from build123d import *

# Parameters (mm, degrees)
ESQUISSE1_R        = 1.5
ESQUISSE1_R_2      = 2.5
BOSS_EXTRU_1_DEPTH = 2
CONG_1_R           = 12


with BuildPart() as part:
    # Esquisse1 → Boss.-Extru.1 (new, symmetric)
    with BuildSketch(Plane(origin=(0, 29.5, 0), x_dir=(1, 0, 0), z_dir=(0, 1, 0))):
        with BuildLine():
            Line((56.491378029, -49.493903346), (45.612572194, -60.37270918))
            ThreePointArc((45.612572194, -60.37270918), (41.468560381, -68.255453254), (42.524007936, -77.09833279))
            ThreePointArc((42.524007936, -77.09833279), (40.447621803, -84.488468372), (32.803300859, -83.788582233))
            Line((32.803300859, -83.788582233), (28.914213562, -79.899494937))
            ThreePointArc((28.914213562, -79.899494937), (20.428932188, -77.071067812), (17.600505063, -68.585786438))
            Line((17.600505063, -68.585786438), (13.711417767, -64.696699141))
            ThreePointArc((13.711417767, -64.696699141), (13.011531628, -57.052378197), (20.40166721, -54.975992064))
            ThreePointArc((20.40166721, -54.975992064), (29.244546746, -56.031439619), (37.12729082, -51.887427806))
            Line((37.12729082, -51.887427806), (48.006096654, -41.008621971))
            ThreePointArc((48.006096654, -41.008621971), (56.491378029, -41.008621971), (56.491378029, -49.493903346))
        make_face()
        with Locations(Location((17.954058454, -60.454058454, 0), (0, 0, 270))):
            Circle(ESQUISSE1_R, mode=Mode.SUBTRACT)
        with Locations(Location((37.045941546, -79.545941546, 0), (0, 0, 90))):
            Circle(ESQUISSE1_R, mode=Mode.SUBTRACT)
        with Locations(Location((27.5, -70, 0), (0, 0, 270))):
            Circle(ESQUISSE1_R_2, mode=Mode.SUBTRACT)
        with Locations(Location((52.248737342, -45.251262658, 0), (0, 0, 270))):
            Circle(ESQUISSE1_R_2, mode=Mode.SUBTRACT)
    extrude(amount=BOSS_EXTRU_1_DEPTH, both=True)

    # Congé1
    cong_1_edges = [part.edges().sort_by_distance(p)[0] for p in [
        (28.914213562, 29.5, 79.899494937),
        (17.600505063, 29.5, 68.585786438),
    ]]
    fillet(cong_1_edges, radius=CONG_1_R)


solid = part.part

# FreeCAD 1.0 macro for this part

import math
import FreeCAD as App
import Part
import Sketcher

V = App.Vector
Q = App.Units.Quantity


def edges_at(feature, points):
    """Names of the edges that pass closest to the given points."""
    edges = feature.Shape.Edges
    near = lambda p: min(range(len(edges)), key=lambda i: edges[i].distToShape(Part.Vertex(*p))[0])
    return sorted({f"Edge{near(p) + 1}" for p in points})

doc = App.newDocument("Part")
body = doc.addObject("PartDesign::Body", "Body")

# Sketch on XZ plane
sketch1 = body.newObject("Sketcher::SketchObject", "Sketch")
sketch1.AttachmentSupport = (doc.getObject("XZ_Plane"), [""])
sketch1.MapMode = "FlatFace"
sketch1.AttachmentOffset = App.Placement(V(0, 0, -29.5), App.Rotation())
sketch1.addGeometry(Part.LineSegment(V(45.612572, 60.372709, 0), V(56.491378, 49.493903, 0)), False)
sketch1.addGeometry(Part.ArcOfCircle(Part.Circle(V(52.248737, 45.251263, 0), V(0, 0, 1), 6), math.radians(-135), math.radians(45)), False)
sketch1.addGeometry(Part.LineSegment(V(48.006097, 41.008622, 0), V(37.127291, 51.887428, 0)), False)
sketch1.addGeometry(Part.ArcOfCircle(Part.Circle(V(26.520689, 41.280826, 0), V(0, 0, 1), 15), math.radians(45), math.radians(114.075168)), False)
sketch1.addGeometry(Part.ArcOfCircle(Part.Circle(V(17.954058, 60.454058, 0), V(0, 0, 1), 6), math.radians(135), math.radians(294.075168)), False)
sketch1.addGeometry(Part.LineSegment(V(13.711418, 64.696699, 0), V(17.600505, 68.585786, 0)), False)
sketch1.addGeometry(Part.ArcOfCircle(Part.Circle(V(27.5, 70, 0), V(0, 0, 1), 10), math.radians(81.869898), math.radians(188.130102)), False)
sketch1.addGeometry(Part.LineSegment(V(28.914214, 79.899495, 0), V(32.803301, 83.788582, 0)), False)
sketch1.addGeometry(Part.ArcOfCircle(Part.Circle(V(37.045942, 79.545942, 0), V(0, 0, 1), 6), math.radians(-24.075168), math.radians(135)), False)
sketch1.addGeometry(Part.ArcOfCircle(Part.Circle(V(56.219174, 70.979311, 0), V(0, 0, 1), 15), math.radians(155.924832), math.radians(225)), False)
sketch1.addGeometry(Part.Circle(V(37.045942, 79.545942, 0), V(0, 0, 1), 1.5), False)
sketch1.addGeometry(Part.Circle(V(27.5, 70, 0), V(0, 0, 1), 2.5), False)
sketch1.addGeometry(Part.Circle(V(52.248737, 45.251263, 0), V(0, 0, 1), 2.5), False)
sketch1.addGeometry(Part.Circle(V(17.954058, 60.454058, 0), V(0, 0, 1), 1.5), False)
sketch1.addConstraint(Sketcher.Constraint("Tangent", 0, 2, 1, 2))
sketch1.addConstraint(Sketcher.Constraint("Tangent", 1, 1, 2, 1))
sketch1.addConstraint(Sketcher.Constraint("Tangent", 2, 2, 3, 1))
sketch1.addConstraint(Sketcher.Constraint("Tangent", 3, 2, 4, 2))
sketch1.addConstraint(Sketcher.Constraint("Tangent", 4, 1, 5, 1))
sketch1.addConstraint(Sketcher.Constraint("Coincident", 5, 2, 6, 2))
sketch1.addConstraint(Sketcher.Constraint("Coincident", 6, 1, 7, 1))
sketch1.addConstraint(Sketcher.Constraint("Tangent", 7, 2, 8, 2))
sketch1.addConstraint(Sketcher.Constraint("Tangent", 8, 1, 9, 1))
sketch1.addConstraint(Sketcher.Constraint("Tangent", 9, 2, 0, 1))
sketch1.addConstraint(Sketcher.Constraint("Coincident", 10, 3, 8, 3))
sketch1.addConstraint(Sketcher.Constraint("Coincident", 11, 3, 6, 3))
sketch1.addConstraint(Sketcher.Constraint("Coincident", 12, 3, 1, 3))
sketch1.addConstraint(Sketcher.Constraint("Coincident", 13, 3, 4, 3))
sketch1.addConstraint(Sketcher.Constraint("Equal", 1, 4))
sketch1.addConstraint(Sketcher.Constraint("Equal", 4, 8))
sketch1.addConstraint(Sketcher.Constraint("Equal", 3, 9))
sketch1.addConstraint(Sketcher.Constraint("Equal", 11, 12))
sketch1.addConstraint(Sketcher.Constraint("Equal", 10, 13))
sketch1.addConstraint(Sketcher.Constraint("Parallel", 0, 2))
sketch1.addConstraint(Sketcher.Constraint("Perpendicular", 2, 5))
sketch1.addConstraint(Sketcher.Constraint("Parallel", 5, 7))
sketch1.addConstraint(Sketcher.Constraint("Equal", 0, 2))
sketch1.addConstraint(Sketcher.Constraint("Equal", 5, 7))
sketch1.addConstraint(Sketcher.Constraint("Diameter", 10, Q("3 mm")))
sketch1.addConstraint(Sketcher.Constraint("Diameter", 11, Q("5 mm")))
sketch1.addConstraint(Sketcher.Constraint("Radius", 1, Q("6 mm")))
sketch1.addConstraint(Sketcher.Constraint("Radius", 3, Q("15 mm")))
sketch1.addConstraint(Sketcher.Constraint("Radius", 6, Q("10 mm")))
sketch1.addConstraint(Sketcher.Constraint("Angle", 0, Q("-45 deg")))
sketch1.addConstraint(Sketcher.Constraint("DistanceY", -1, 1, 6, 3, Q("70 mm")))
sketch1.addConstraint(Sketcher.Constraint("Distance", 5, Q("5.5 mm")))
sketch1.addConstraint(Sketcher.Constraint("DistanceX", -1, 1, 6, 3, Q("27.5 mm")))
sketch1.addConstraint(Sketcher.Constraint("DistanceY", -1, 1, 4, 1, Q("64.696699 mm")))
sketch1.addConstraint(Sketcher.Constraint("DistanceX", -1, 1, 7, 2, Q("32.803301 mm")))
sketch1.addConstraint(Sketcher.Constraint("DistanceX", -1, 1, 0, 2, Q("56.491378 mm")))
pad1 = body.newObject("PartDesign::Pad", "Pad")
pad1.Profile = sketch1
pad1.Length = 4
pad1.Midplane = True
doc.recompute()

fillet = body.newObject("PartDesign::Fillet", "Fillet")
fillet.Base = (pad1, edges_at(pad1, [(28.914, 29.5, 79.899), (17.601, 29.5, 68.586)]))
fillet.Radius = 12

doc.recompute()
